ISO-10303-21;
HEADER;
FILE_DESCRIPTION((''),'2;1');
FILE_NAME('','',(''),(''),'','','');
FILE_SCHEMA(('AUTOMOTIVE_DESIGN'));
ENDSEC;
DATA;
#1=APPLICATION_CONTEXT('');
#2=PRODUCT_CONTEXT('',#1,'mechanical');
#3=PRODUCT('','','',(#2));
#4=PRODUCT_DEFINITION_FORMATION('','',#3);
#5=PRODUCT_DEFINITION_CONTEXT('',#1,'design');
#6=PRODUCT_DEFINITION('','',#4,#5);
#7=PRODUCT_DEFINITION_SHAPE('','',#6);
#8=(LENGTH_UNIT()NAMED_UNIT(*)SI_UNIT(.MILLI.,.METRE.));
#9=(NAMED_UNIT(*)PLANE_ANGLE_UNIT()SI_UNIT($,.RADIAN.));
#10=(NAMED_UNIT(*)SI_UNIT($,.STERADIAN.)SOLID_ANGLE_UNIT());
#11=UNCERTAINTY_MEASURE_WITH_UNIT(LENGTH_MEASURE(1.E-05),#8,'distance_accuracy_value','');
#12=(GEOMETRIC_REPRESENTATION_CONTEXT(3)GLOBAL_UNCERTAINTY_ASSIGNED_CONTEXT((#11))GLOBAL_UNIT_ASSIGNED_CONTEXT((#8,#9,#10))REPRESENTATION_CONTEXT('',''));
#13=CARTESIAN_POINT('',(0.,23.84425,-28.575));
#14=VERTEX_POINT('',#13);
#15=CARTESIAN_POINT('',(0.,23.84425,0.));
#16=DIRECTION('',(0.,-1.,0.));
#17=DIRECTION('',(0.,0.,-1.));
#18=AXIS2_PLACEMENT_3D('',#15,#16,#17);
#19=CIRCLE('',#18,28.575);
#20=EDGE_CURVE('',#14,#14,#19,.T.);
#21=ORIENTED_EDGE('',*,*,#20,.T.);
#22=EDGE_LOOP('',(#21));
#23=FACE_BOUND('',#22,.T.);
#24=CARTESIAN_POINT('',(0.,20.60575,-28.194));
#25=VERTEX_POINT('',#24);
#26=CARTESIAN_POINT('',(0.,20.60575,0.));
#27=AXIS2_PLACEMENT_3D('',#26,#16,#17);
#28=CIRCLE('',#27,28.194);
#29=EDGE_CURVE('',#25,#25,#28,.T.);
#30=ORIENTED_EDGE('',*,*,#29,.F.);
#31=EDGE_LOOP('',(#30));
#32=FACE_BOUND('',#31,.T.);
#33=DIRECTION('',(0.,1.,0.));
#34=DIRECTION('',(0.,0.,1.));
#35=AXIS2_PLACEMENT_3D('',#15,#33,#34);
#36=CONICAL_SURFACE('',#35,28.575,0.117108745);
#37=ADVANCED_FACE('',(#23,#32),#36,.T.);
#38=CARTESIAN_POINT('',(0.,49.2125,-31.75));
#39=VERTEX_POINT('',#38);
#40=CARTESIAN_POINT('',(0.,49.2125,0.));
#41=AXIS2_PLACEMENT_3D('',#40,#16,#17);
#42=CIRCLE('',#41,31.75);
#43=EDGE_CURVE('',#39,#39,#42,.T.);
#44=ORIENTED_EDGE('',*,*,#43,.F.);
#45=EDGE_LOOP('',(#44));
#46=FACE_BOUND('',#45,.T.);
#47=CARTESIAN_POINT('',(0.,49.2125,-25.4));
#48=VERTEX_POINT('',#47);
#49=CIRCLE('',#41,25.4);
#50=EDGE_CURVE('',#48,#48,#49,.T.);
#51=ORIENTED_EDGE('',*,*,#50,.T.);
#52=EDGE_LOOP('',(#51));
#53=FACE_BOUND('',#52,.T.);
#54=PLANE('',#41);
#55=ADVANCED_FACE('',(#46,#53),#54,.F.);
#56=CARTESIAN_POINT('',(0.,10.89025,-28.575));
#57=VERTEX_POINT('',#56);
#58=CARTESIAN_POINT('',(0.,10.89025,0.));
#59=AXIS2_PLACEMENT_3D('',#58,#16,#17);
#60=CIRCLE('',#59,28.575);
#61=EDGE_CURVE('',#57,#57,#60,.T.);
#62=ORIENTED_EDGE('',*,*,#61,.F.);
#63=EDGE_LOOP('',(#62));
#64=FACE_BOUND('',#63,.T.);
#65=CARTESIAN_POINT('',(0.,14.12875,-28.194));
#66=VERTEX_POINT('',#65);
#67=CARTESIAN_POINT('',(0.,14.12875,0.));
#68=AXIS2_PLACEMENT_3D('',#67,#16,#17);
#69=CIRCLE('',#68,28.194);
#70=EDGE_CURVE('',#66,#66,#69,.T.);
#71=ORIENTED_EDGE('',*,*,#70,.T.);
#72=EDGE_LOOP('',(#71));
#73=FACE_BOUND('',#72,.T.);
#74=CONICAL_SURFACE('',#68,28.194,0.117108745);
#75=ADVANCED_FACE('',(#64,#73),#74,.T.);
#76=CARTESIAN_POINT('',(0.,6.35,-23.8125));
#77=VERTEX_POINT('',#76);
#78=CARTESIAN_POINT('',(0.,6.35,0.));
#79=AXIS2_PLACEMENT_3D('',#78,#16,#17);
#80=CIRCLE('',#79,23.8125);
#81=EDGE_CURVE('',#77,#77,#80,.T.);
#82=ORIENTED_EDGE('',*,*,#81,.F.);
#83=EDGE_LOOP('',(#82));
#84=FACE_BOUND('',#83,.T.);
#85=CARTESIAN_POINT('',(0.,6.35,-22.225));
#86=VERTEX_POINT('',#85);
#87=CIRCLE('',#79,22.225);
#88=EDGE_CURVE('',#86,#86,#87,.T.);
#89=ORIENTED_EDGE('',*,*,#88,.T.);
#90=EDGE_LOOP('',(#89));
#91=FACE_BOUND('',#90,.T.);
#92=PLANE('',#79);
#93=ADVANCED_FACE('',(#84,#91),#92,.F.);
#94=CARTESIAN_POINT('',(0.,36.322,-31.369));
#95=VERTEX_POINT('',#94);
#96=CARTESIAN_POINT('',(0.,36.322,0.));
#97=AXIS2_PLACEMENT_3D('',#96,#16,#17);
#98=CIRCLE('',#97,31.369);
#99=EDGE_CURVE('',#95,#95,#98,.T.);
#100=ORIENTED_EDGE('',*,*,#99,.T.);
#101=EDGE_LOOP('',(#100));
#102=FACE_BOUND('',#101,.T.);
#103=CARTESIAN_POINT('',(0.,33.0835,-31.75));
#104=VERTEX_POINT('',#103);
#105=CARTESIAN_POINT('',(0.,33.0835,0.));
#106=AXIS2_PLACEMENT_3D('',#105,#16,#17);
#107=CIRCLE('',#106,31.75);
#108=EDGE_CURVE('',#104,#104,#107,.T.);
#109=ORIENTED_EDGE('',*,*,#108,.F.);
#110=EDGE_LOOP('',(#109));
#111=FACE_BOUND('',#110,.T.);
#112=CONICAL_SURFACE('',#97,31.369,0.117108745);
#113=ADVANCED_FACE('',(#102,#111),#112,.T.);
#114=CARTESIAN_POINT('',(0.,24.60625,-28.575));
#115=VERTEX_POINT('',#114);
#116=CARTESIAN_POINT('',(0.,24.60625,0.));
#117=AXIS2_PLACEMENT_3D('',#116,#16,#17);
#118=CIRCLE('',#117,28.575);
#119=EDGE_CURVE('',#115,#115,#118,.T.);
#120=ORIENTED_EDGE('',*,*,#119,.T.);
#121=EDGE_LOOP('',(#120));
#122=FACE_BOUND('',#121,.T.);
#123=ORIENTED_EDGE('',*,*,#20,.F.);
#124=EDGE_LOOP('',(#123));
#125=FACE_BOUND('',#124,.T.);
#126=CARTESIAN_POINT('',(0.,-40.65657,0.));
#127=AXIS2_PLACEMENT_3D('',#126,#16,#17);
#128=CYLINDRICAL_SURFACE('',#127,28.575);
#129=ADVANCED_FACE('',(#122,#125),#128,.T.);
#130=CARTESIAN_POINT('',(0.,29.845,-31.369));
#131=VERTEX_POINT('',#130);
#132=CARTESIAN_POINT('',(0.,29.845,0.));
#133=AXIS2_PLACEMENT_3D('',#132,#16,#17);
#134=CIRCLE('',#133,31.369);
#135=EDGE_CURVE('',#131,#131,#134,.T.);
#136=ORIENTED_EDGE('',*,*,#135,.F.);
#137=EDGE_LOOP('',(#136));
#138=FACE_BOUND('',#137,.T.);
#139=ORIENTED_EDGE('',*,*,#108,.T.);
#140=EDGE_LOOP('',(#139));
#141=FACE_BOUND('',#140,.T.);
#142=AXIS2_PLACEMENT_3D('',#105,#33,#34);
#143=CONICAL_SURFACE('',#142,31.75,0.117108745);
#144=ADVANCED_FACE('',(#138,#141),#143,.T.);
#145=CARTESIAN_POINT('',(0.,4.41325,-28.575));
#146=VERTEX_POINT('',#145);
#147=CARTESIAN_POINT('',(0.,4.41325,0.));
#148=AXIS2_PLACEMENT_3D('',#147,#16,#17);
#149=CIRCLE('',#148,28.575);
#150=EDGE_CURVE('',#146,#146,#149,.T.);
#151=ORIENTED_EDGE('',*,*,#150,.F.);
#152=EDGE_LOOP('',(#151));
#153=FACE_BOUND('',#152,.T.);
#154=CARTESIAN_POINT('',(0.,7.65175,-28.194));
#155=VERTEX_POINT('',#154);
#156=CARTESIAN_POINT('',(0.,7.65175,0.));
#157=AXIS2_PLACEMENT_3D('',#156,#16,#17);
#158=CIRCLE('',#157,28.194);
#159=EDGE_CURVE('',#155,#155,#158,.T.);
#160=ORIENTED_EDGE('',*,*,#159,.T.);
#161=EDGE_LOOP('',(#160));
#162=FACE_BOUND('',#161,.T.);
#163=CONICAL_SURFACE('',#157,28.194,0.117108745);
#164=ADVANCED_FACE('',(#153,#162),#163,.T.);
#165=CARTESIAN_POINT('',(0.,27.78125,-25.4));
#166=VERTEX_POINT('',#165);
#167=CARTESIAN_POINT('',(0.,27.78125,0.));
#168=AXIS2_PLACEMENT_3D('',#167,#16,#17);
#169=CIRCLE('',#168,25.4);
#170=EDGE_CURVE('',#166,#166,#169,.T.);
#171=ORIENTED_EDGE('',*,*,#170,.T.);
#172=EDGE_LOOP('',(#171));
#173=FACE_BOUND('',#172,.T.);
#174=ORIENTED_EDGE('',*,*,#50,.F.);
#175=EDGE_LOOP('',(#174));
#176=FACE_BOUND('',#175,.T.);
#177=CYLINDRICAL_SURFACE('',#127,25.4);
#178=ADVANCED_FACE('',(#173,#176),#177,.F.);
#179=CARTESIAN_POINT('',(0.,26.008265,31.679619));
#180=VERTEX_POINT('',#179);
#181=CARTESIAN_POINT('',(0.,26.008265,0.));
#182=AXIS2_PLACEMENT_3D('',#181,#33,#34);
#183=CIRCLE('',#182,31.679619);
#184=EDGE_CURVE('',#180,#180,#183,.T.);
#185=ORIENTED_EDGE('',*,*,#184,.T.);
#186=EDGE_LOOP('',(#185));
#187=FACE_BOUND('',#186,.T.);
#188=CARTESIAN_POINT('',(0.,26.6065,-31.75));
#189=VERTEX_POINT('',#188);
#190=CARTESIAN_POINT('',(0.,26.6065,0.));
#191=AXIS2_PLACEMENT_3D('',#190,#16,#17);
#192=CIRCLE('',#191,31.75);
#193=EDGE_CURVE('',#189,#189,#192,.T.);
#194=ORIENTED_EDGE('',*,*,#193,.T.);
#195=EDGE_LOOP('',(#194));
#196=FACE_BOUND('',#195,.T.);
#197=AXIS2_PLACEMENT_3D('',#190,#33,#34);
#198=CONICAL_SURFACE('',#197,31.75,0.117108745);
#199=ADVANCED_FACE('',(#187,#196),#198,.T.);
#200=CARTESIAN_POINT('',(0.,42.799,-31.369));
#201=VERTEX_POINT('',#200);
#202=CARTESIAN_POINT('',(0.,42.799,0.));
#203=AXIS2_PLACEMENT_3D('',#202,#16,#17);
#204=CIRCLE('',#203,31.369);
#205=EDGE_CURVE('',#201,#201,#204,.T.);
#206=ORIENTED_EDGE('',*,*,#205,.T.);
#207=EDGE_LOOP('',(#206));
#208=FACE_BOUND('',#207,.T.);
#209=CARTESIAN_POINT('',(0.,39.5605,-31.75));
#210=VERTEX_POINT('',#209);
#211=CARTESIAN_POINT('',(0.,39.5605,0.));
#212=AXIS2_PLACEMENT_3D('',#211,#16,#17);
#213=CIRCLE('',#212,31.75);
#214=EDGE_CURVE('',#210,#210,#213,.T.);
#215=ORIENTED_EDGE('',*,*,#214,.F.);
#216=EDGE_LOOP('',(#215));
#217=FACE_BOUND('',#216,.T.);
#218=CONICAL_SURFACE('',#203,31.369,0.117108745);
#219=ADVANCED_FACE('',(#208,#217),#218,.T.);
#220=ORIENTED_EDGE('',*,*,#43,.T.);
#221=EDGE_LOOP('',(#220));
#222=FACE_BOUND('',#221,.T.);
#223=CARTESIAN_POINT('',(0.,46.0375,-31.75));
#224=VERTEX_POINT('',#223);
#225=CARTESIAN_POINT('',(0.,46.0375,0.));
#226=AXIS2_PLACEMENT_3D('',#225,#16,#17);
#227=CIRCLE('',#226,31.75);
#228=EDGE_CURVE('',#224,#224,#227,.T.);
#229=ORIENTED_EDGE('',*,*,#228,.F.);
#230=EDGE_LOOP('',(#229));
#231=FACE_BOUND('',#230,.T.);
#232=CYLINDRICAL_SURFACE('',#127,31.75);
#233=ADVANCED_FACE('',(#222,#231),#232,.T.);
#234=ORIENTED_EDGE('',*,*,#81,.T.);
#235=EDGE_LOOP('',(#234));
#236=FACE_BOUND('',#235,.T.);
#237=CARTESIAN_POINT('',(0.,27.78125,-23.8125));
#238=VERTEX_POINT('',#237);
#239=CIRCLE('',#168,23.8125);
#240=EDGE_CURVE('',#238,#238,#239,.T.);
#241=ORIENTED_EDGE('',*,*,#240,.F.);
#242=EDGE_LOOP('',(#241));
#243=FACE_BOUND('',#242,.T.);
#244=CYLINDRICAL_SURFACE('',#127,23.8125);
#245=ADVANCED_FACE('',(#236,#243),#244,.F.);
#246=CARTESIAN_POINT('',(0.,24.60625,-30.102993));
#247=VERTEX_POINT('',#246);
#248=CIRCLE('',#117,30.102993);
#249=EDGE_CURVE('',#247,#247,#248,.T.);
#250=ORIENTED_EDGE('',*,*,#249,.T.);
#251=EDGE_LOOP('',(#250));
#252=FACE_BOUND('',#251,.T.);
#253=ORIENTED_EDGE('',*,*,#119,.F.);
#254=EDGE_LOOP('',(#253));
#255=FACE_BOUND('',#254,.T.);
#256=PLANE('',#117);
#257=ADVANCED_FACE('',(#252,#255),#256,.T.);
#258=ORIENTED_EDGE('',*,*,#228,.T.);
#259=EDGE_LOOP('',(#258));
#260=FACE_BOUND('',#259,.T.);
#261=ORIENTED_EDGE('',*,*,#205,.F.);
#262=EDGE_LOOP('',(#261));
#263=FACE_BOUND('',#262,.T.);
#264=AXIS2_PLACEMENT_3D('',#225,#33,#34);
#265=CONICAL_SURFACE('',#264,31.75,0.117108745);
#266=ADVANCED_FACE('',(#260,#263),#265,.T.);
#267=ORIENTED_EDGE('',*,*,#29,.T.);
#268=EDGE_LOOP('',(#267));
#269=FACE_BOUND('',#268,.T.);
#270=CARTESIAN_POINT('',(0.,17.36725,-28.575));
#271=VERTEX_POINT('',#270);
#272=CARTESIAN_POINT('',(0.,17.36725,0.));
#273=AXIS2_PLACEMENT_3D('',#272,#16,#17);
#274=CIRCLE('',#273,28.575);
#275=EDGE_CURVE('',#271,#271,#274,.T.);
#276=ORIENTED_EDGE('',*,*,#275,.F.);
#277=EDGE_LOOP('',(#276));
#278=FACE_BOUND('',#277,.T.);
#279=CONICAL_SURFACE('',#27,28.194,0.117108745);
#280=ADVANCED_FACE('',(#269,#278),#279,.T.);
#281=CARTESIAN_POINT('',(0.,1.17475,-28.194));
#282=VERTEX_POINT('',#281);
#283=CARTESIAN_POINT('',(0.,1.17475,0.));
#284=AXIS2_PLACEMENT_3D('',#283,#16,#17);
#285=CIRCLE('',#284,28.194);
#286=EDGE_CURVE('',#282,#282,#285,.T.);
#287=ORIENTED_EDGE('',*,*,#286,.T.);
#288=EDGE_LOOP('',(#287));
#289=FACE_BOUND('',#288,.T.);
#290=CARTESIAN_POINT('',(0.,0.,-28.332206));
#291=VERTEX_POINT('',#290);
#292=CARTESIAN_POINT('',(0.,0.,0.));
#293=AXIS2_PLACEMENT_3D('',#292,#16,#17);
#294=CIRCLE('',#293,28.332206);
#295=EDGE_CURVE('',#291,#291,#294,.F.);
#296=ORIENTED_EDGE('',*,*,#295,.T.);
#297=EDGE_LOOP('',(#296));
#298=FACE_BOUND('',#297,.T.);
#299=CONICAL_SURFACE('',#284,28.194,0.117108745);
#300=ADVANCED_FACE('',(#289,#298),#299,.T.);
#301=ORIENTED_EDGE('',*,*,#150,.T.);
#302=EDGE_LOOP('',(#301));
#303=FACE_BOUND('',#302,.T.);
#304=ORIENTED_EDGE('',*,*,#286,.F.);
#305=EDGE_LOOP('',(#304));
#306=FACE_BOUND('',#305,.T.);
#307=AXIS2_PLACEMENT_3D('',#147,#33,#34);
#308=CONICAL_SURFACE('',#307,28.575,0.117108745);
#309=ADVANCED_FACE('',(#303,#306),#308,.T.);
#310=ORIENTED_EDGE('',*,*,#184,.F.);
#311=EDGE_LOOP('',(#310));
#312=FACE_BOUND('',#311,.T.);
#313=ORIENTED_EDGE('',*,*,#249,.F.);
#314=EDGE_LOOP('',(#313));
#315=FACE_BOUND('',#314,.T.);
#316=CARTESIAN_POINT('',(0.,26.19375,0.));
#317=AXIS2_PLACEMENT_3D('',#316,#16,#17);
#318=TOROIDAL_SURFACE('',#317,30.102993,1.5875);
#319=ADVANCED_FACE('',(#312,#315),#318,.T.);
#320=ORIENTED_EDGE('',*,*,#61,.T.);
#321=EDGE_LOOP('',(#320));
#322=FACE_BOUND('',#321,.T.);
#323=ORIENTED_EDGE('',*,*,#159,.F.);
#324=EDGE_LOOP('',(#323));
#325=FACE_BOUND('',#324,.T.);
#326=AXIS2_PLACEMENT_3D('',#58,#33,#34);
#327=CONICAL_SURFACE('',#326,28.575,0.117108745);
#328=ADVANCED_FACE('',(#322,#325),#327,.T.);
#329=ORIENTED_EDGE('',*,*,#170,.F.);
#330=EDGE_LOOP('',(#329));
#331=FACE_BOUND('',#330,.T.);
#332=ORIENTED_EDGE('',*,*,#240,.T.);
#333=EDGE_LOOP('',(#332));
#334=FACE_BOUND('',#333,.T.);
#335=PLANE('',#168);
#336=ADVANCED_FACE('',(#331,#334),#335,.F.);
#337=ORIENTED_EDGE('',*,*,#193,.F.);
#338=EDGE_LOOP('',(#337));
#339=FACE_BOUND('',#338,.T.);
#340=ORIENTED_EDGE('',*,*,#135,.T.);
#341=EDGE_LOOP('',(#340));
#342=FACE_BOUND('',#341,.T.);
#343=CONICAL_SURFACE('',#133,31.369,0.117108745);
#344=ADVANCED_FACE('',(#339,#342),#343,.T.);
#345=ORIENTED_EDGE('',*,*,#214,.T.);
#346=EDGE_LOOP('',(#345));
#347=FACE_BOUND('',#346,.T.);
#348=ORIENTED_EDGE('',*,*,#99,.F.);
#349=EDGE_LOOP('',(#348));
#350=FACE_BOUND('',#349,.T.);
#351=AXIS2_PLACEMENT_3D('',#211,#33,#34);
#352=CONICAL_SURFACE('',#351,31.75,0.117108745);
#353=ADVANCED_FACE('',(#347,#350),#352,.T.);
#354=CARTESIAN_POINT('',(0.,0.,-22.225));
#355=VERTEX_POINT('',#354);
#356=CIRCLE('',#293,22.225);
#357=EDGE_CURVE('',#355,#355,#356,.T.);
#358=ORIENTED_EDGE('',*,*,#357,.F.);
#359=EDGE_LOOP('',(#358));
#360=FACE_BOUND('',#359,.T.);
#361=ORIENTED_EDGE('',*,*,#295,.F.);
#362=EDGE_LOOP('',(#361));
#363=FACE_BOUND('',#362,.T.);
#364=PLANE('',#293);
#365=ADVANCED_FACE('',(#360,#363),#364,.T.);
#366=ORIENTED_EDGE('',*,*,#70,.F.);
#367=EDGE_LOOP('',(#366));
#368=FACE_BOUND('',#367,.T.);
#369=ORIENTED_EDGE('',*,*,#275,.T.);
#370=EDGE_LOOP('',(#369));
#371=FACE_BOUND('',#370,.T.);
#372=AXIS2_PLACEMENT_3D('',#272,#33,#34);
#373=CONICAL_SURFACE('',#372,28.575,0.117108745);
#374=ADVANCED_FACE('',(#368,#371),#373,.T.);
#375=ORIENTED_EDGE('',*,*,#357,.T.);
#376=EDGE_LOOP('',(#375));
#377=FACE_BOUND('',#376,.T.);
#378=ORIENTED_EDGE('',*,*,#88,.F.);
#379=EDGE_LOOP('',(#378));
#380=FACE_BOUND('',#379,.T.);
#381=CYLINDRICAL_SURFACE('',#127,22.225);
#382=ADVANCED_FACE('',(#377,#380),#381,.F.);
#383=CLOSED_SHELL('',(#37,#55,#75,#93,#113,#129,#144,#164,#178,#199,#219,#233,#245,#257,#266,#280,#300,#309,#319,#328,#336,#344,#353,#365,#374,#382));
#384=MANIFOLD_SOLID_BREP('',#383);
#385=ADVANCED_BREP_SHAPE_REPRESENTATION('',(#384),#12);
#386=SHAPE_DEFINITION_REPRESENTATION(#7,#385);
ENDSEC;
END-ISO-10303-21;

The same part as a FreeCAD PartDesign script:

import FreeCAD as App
import Part
import Sketcher

V = App.Vector
Q = App.Units.Quantity


def edges_at(feature, points):
    """Names of the edges that pass closest to the given points."""
    edges = feature.Shape.Edges
    near = lambda p: min(range(len(edges)), key=lambda i: edges[i].distToShape(Part.Vertex(*p))[0])
    return sorted({f"Edge{near(p) + 1}" for p in points})


def add_polygon(sketch, points):
    """Adds a closed chain of lines whose ends are joined by coincident constraints."""
    first, n = sketch.GeometryCount, len(points)
    for a, b in zip(points, points[1:] + points[:1]):
        sketch.addGeometry(Part.LineSegment(App.Vector(*a, 0), App.Vector(*b, 0)), False)
    for i in range(n):
        sketch.addConstraint(Sketcher.Constraint("Coincident", first + i, 2, first + (i + 1) % n, 1))

doc = App.newDocument("Part")
body = doc.addObject("PartDesign::Body", "Body")

sketch1 = body.newObject("Sketcher::SketchObject", "Sketch")
sketch1.AttachmentSupport = (doc.getObject("XY_Plane"), [""])
sketch1.MapMode = "FlatFace"
add_polygon(sketch1, [(31.75, 49.2125), (25.4, 49.2125), (25.4, 27.78125), (23.8125, 27.78125), (23.8125, 6.35), (22.225, 6.35), (22.225, 0), (28.575, 0), (28.575, 24.60625), (31.75, 24.60625)])
sketch1.addConstraint([
    Sketcher.Constraint("Horizontal", 0),
    Sketcher.Constraint("Vertical", 1),
    Sketcher.Constraint("Horizontal", 2),
    Sketcher.Constraint("Vertical", 3),
    Sketcher.Constraint("Horizontal", 4),
    Sketcher.Constraint("Vertical", 5),
    Sketcher.Constraint("Horizontal", 6),
    Sketcher.Constraint("Vertical", 7),
    Sketcher.Constraint("Horizontal", 8),
    Sketcher.Constraint("Vertical", 9),
    Sketcher.Constraint("PointOnObject", 5, 2, -1),
    Sketcher.Constraint("Equal", 2, 4),
    Sketcher.Constraint("Equal", 0, 6),
    Sketcher.Constraint("Equal", 1, 3),
    Sketcher.Constraint("Equal", 6, 5),
    Sketcher.Constraint("Equal", 7, 9),
    Sketcher.Constraint("DistanceX", -1, 1, 0, 2, Q("1 in")),
    Sketcher.Constraint("DistanceX", 0, 2, 0, 1, Q("0.25 in")),
    Sketcher.Constraint("DistanceX", 2, 2, 2, 1, Q("0.0625 in")),
    Sketcher.Constraint("DistanceY", 1, 2, 1, 1, Q("0.84375 in")),
])
revolution = body.newObject("PartDesign::Revolution", "Revolution")
revolution.Profile = sketch1
revolution.ReferenceAxis = (sketch1, ["V_Axis"])
revolution.Angle = 360

sketch2 = body.newObject("Sketcher::SketchObject", "Sketch001")
sketch2.AttachmentSupport = (doc.getObject("XY_Plane"), [""])
sketch2.MapMode = "FlatFace"
add_polygon(sketch2, [(31.75, 46.0375), (31.369, 42.799), (31.75, 39.5605)])
add_polygon(sketch2, [(28.575, 17.36725), (28.575, 23.84425), (28.194, 20.60575)])
sketch2.addConstraint([
    Sketcher.Constraint("Vertical", 2),
    Sketcher.Constraint("Vertical", 3),
    Sketcher.Constraint("Parallel", 0, 4),
    Sketcher.Constraint("Parallel", 1, 5),
    Sketcher.Constraint("Equal", 2, 3),
    Sketcher.Constraint("Equal", 0, 1),
    Sketcher.Constraint("DistanceY", 2, 1, 2, 2, Q("0.255 in")),
    Sketcher.Constraint("DistanceX", -1, 1, 1, 2, Q("1.25 in")),
    Sketcher.Constraint("DistanceX", -1, 1, 4, 2, Q("1.11 in")),
    Sketcher.Constraint("DistanceX", 3, 2, 0, 2, Q("0.11 in")),
    Sketcher.Constraint("DistanceY", -1, 1, 0, 2, Q("1.685 in")),
    Sketcher.Constraint("DistanceY", -1, 1, 3, 2, Q("23.84425 mm")),
])
groove = body.newObject("PartDesign::Groove", "Groove")
groove.Profile = sketch2
groove.ReferenceAxis = (sketch2, ["V_Axis"])
groove.Angle = 360
doc.recompute()

linearpattern = body.newObject("PartDesign::LinearPattern", "LinearPattern")
linearpattern.Originals = [groove]
linearpattern.Direction = (doc.getObject("Y_Axis"), [""])
linearpattern.Mode = "offset"
linearpattern.Offset = Q("0.255 in")
linearpattern.Occurrences = 6
linearpattern.Reversed = True
body.Tip = linearpattern
doc.recompute()

fillet = body.newObject("PartDesign::Fillet", "Fillet")
fillet.Base = (linearpattern, edges_at(linearpattern, [(-31.515, 24.606, 0)]))
fillet.Radius = Q("0.0625 in")

doc.recompute()
